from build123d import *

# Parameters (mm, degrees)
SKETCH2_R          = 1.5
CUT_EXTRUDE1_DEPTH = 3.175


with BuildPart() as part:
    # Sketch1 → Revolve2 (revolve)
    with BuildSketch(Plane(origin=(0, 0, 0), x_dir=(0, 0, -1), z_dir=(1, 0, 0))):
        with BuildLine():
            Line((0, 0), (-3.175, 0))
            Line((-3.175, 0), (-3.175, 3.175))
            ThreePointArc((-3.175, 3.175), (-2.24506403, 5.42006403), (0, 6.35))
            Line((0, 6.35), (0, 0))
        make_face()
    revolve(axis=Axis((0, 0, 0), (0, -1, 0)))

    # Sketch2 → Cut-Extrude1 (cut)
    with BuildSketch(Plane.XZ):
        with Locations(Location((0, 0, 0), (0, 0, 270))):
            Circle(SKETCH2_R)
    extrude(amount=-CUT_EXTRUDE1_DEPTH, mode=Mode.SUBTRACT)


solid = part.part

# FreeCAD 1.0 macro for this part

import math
import FreeCAD as App
import Part
import Sketcher
from FreeCAD import Vector
Q = App.Units.Quantity

doc = App.newDocument("Part")
body = doc.addObject("PartDesign::Body", "Body")

# Sketch on YZ plane
sketch1 = body.newObject("Sketcher::SketchObject", "Sketch")
sketch1.AttachmentSupport = (doc.getObject("YZ_Plane"), [""])
sketch1.MapMode = "FlatFace"
sketch1.addGeometry(Part.LineSegment(Vector(0, 3.175, 0), Vector(0, 0, 0)), False)
sketch1.addGeometry(Part.LineSegment(Vector(0, 0, 0), Vector(6.35, 0, 0)), False)
sketch1.addGeometry(Part.ArcOfCircle(Part.Circle(Vector(3.175, 0, 0), Vector(0, 0, 1), 3.175), math.radians(0), math.radians(90)), False)
sketch1.addGeometry(Part.LineSegment(Vector(3.175, 3.175, 0), Vector(0, 3.175, 0)), False)
sketch1.addConstraint(Sketcher.Constraint("Coincident", 0, 2, 1, 1))
sketch1.addConstraint(Sketcher.Constraint("Coincident", 1, 2, 2, 1))
sketch1.addConstraint(Sketcher.Constraint("Tangent", 2, 2, 3, 1))
sketch1.addConstraint(Sketcher.Constraint("Coincident", 3, 2, 0, 1))
sketch1.addConstraint(Sketcher.Constraint("Vertical", 0))
sketch1.addConstraint(Sketcher.Constraint("Horizontal", 1))
sketch1.addConstraint(Sketcher.Constraint("Horizontal", 3))
sketch1.addConstraint(Sketcher.Constraint("Coincident", 0, 2, -1, 1))
sketch1.addConstraint(Sketcher.Constraint("PointOnObject", 2, 3, -1))
sketch1.addConstraint(Sketcher.Constraint("Equal", 3, 0))
sketch1.addConstraint(Sketcher.Constraint("Radius", 2, Q("0.125 in")))
revolution = body.newObject("PartDesign::Revolution", "Revolution")
revolution.Profile = sketch1
revolution.ReferenceAxis = (sketch1, ["H_Axis"])
revolution.Angle = 360

# Sketch on XZ plane
sketch2 = body.newObject("Sketcher::SketchObject", "Sketch001")
sketch2.AttachmentSupport = (doc.getObject("XZ_Plane"), [""])
sketch2.MapMode = "FlatFace"
sketch2.addGeometry(Part.Circle(Vector(0, 0, 0), Vector(0, 0, 1), 1.5), False)
sketch2.addConstraint(Sketcher.Constraint("Coincident", 0, 3, -1, 1))
sketch2.addConstraint(Sketcher.Constraint("Diameter", 0, Q("3 mm")))
pocket1 = body.newObject("PartDesign::Pocket", "Pocket")
pocket1.Profile = sketch2
pocket1.Length = Q("0.125 in")

doc.recompute()
